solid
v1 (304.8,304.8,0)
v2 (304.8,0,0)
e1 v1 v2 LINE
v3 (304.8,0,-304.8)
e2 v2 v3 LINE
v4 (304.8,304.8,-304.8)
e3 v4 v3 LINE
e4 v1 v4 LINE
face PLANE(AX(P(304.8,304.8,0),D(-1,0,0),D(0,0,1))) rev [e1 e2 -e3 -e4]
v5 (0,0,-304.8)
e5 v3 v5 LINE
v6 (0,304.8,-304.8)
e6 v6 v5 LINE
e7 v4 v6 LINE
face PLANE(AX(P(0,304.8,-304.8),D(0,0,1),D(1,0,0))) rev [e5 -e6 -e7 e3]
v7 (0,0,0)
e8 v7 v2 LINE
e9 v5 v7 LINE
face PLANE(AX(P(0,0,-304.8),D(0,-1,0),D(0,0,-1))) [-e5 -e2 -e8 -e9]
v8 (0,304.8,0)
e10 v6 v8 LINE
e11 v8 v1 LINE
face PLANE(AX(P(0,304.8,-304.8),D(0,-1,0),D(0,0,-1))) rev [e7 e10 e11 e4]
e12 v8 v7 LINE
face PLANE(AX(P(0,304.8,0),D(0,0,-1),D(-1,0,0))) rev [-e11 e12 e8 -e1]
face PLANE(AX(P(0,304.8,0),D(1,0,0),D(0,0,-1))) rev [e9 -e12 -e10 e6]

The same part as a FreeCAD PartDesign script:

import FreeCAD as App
import Part
import Sketcher

V = App.Vector
Q = App.Units.Quantity


def add_polygon(sketch, points):
    """Adds a closed chain of lines whose ends are joined by coincident constraints."""
    first, n = sketch.GeometryCount, len(points)
    for a, b in zip(points, points[1:] + points[:1]):
        sketch.addGeometry(Part.LineSegment(App.Vector(*a, 0), App.Vector(*b, 0)), False)
    for i in range(n):
        sketch.addConstraint(Sketcher.Constraint("Coincident", first + i, 2, first + (i + 1) % n, 1))

doc = App.newDocument("Part")
body = doc.addObject("PartDesign::Body", "Body")

# Sketch on XZ plane
sketch1 = body.newObject("Sketcher::SketchObject", "Sketch")
sketch1.AttachmentSupport = (doc.getObject("XZ_Plane"), [""])
sketch1.MapMode = "FlatFace"
add_polygon(sketch1, [(0, -305), (0, 0), (305, 0), (305, -305)])  # lines 0-3
sketch1.addConstraint([
    Sketcher.Constraint("Vertical", 0),
    Sketcher.Constraint("Horizontal", 1),
    Sketcher.Constraint("Vertical", 2),
    Sketcher.Constraint("Horizontal", 3),
    Sketcher.Constraint("Coincident", 0, 2, -1, 1),
    Sketcher.Constraint("Equal", 3, 0),
    Sketcher.Constraint("DistanceX", 1, 1, 1, 2, Q("12 in")),
])
pad1 = body.newObject("PartDesign::Pad", "Pad")
pad1.Profile = sketch1
pad1.Length = Q("12 in")
pad1.Reversed = True

doc.recompute()
